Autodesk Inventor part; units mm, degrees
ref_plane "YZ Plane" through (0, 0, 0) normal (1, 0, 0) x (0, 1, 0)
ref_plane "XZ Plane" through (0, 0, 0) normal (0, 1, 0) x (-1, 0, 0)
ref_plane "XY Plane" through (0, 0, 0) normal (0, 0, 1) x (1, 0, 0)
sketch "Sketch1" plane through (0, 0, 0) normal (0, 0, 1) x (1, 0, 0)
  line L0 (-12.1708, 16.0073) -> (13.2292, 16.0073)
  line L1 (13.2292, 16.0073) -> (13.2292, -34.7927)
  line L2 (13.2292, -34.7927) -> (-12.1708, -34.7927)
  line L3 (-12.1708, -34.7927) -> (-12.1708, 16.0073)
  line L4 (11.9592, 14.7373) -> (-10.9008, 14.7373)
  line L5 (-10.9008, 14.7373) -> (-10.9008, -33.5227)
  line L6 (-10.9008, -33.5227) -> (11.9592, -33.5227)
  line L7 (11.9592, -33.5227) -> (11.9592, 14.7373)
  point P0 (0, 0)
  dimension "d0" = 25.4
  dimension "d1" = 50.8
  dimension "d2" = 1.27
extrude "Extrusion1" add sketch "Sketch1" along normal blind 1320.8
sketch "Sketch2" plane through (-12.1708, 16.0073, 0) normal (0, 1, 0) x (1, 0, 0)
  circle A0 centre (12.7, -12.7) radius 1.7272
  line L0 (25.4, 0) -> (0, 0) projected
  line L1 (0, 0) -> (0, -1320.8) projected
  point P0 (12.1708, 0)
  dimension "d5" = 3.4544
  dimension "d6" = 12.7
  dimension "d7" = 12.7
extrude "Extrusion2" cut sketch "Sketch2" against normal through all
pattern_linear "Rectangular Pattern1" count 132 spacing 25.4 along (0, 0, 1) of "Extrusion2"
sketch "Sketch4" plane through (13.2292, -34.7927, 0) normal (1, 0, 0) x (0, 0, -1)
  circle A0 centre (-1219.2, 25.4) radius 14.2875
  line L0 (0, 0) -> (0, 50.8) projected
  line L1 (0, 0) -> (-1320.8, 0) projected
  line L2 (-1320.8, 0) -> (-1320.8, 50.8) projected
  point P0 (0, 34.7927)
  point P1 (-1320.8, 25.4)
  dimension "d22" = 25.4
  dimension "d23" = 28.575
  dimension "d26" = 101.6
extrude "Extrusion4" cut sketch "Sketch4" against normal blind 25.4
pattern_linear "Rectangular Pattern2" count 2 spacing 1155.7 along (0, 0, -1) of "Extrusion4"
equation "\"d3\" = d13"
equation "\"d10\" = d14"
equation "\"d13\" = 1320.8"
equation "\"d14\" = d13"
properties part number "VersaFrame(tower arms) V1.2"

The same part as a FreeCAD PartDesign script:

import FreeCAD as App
import Part
import Sketcher
Q = App.Units.Quantity


def add_polygon(sketch, points):
    """Adds a closed chain of lines whose ends are joined by coincident constraints."""
    first, n = sketch.GeometryCount, len(points)
    for a, b in zip(points, points[1:] + points[:1]):
        sketch.addGeometry(Part.LineSegment(App.Vector(*a, 0), App.Vector(*b, 0)), False)
    for i in range(n):
        sketch.addConstraint(Sketcher.Constraint("Coincident", first + i, 2, first + (i + 1) % n, 1))

doc = App.newDocument("Part")
body = doc.addObject("PartDesign::Body", "Body")

# Sketch on XY plane
sketch1 = body.newObject("Sketcher::SketchObject", "Sketch")
sketch1.AttachmentSupport = (doc.getObject("XY_Plane"), [""])
sketch1.MapMode = "FlatFace"
add_polygon(sketch1, [(13, 16), (-12, 16), (-12, -35), (13, -35)])  # lines 0-3
add_polygon(sketch1, [(-11, 15), (12, 15), (12, -34), (-11, -34)])  # lines 4-7
sketch1.addConstraint([
    Sketcher.Constraint("Horizontal", 0),
    Sketcher.Constraint("Vertical", 1),
    Sketcher.Constraint("Horizontal", 2),
    Sketcher.Constraint("Vertical", 3),
    Sketcher.Constraint("Horizontal", 4),
    Sketcher.Constraint("Vertical", 5),
    Sketcher.Constraint("Horizontal", 6),
    Sketcher.Constraint("Vertical", 7),
    Sketcher.Constraint("DistanceX", 0, 2, 0, 1, Q("1 in")),
    Sketcher.Constraint("DistanceY", 1, 2, 1, 1, Q("2 in")),
    Sketcher.Constraint("DistanceX", 4, 2, 3, 2, Q("0.05 in")),
    Sketcher.Constraint("DistanceY", 4, 2, 3, 2, Q("0.05 in")),
    Sketcher.Constraint("DistanceY", 2, 2, 5, 2, Q("0.05 in")),
    Sketcher.Constraint("DistanceX", 1, 2, 6, 2, Q("0.05 in")),
    Sketcher.Constraint("DistanceY", -1, 1, 0, 2, Q("0.6302 in")),
    Sketcher.Constraint("DistanceX", 0, 2, -1, 1, Q("12.1708 mm")),
])
pad1 = body.newObject("PartDesign::Pad", "Pad")
pad1.Profile = sketch1
pad1.Length = Q("52 in")

# Sketch on XZ plane
sketch2 = body.newObject("Sketcher::SketchObject", "Sketch001")
sketch2.AttachmentSupport = (doc.getObject("XZ_Plane"), [""])
sketch2.MapMode = "FlatFace"
sketch2.AttachmentOffset = App.Placement(App.Vector(0, 0, -0.6302087 * 25.4), App.Rotation())
sketch2.addGeometry(Part.Circle(App.Vector(0.5, 12.7, 0), App.Vector(0, 0, 1), 1.7), False)
sketch2.addConstraint([
    Sketcher.Constraint("Diameter", 0, Q("0.136 in")),
    Sketcher.Constraint("DistanceY", -1, 1, 0, 3, Q("0.5 in")),
    Sketcher.Constraint("DistanceX", -1, 1, 0, 3, Q("0.5292 mm")),
])
pocket1 = body.newObject("PartDesign::Pocket", "Pocket")
pocket1.Profile = sketch2
pocket1.Type = "ThroughAll"
pocket1.Reversed = True
doc.recompute()

linearpattern = body.newObject("PartDesign::LinearPattern", "LinearPattern")
linearpattern.Originals = [pocket1]
linearpattern.Direction = (doc.getObject("Z_Axis"), [""])
linearpattern.Mode = "offset"
linearpattern.Offset = Q("1 in")
linearpattern.Occurrences = 132
body.Tip = linearpattern

# Sketch on YZ plane
sketch3 = body.newObject("Sketcher::SketchObject", "Sketch002")
sketch3.AttachmentSupport = (doc.getObject("YZ_Plane"), [""])
sketch3.MapMode = "FlatFace"
sketch3.AttachmentOffset = App.Placement(App.Vector(0, 0, 13.2292), App.Rotation())
sketch3.addGeometry(Part.Circle(App.Vector(-9, 1219, 0), App.Vector(0, 0, 1), 14), False)
sketch3.addConstraint([
    Sketcher.Constraint("Diameter", 0, Q("1.125 in")),
    Sketcher.Constraint("DistanceY", -1, 1, 0, 3, Q("48 in")),
    Sketcher.Constraint("DistanceX", 0, 3, -1, 1, Q("0.3698 in")),
])
pocket2 = body.newObject("PartDesign::Pocket", "Pocket001")
pocket2.Profile = sketch3
pocket2.Length = Q("1 in")
doc.recompute()

linearpattern2 = body.newObject("PartDesign::LinearPattern", "LinearPattern001")
linearpattern2.Originals = [pocket2]
linearpattern2.Direction = (doc.getObject("Z_Axis"), [""])
linearpattern2.Mode = "offset"
linearpattern2.Offset = Q("45.5 in")
linearpattern2.Occurrences = 2
linearpattern2.Reversed = True
body.Tip = linearpattern2

doc.recompute()
